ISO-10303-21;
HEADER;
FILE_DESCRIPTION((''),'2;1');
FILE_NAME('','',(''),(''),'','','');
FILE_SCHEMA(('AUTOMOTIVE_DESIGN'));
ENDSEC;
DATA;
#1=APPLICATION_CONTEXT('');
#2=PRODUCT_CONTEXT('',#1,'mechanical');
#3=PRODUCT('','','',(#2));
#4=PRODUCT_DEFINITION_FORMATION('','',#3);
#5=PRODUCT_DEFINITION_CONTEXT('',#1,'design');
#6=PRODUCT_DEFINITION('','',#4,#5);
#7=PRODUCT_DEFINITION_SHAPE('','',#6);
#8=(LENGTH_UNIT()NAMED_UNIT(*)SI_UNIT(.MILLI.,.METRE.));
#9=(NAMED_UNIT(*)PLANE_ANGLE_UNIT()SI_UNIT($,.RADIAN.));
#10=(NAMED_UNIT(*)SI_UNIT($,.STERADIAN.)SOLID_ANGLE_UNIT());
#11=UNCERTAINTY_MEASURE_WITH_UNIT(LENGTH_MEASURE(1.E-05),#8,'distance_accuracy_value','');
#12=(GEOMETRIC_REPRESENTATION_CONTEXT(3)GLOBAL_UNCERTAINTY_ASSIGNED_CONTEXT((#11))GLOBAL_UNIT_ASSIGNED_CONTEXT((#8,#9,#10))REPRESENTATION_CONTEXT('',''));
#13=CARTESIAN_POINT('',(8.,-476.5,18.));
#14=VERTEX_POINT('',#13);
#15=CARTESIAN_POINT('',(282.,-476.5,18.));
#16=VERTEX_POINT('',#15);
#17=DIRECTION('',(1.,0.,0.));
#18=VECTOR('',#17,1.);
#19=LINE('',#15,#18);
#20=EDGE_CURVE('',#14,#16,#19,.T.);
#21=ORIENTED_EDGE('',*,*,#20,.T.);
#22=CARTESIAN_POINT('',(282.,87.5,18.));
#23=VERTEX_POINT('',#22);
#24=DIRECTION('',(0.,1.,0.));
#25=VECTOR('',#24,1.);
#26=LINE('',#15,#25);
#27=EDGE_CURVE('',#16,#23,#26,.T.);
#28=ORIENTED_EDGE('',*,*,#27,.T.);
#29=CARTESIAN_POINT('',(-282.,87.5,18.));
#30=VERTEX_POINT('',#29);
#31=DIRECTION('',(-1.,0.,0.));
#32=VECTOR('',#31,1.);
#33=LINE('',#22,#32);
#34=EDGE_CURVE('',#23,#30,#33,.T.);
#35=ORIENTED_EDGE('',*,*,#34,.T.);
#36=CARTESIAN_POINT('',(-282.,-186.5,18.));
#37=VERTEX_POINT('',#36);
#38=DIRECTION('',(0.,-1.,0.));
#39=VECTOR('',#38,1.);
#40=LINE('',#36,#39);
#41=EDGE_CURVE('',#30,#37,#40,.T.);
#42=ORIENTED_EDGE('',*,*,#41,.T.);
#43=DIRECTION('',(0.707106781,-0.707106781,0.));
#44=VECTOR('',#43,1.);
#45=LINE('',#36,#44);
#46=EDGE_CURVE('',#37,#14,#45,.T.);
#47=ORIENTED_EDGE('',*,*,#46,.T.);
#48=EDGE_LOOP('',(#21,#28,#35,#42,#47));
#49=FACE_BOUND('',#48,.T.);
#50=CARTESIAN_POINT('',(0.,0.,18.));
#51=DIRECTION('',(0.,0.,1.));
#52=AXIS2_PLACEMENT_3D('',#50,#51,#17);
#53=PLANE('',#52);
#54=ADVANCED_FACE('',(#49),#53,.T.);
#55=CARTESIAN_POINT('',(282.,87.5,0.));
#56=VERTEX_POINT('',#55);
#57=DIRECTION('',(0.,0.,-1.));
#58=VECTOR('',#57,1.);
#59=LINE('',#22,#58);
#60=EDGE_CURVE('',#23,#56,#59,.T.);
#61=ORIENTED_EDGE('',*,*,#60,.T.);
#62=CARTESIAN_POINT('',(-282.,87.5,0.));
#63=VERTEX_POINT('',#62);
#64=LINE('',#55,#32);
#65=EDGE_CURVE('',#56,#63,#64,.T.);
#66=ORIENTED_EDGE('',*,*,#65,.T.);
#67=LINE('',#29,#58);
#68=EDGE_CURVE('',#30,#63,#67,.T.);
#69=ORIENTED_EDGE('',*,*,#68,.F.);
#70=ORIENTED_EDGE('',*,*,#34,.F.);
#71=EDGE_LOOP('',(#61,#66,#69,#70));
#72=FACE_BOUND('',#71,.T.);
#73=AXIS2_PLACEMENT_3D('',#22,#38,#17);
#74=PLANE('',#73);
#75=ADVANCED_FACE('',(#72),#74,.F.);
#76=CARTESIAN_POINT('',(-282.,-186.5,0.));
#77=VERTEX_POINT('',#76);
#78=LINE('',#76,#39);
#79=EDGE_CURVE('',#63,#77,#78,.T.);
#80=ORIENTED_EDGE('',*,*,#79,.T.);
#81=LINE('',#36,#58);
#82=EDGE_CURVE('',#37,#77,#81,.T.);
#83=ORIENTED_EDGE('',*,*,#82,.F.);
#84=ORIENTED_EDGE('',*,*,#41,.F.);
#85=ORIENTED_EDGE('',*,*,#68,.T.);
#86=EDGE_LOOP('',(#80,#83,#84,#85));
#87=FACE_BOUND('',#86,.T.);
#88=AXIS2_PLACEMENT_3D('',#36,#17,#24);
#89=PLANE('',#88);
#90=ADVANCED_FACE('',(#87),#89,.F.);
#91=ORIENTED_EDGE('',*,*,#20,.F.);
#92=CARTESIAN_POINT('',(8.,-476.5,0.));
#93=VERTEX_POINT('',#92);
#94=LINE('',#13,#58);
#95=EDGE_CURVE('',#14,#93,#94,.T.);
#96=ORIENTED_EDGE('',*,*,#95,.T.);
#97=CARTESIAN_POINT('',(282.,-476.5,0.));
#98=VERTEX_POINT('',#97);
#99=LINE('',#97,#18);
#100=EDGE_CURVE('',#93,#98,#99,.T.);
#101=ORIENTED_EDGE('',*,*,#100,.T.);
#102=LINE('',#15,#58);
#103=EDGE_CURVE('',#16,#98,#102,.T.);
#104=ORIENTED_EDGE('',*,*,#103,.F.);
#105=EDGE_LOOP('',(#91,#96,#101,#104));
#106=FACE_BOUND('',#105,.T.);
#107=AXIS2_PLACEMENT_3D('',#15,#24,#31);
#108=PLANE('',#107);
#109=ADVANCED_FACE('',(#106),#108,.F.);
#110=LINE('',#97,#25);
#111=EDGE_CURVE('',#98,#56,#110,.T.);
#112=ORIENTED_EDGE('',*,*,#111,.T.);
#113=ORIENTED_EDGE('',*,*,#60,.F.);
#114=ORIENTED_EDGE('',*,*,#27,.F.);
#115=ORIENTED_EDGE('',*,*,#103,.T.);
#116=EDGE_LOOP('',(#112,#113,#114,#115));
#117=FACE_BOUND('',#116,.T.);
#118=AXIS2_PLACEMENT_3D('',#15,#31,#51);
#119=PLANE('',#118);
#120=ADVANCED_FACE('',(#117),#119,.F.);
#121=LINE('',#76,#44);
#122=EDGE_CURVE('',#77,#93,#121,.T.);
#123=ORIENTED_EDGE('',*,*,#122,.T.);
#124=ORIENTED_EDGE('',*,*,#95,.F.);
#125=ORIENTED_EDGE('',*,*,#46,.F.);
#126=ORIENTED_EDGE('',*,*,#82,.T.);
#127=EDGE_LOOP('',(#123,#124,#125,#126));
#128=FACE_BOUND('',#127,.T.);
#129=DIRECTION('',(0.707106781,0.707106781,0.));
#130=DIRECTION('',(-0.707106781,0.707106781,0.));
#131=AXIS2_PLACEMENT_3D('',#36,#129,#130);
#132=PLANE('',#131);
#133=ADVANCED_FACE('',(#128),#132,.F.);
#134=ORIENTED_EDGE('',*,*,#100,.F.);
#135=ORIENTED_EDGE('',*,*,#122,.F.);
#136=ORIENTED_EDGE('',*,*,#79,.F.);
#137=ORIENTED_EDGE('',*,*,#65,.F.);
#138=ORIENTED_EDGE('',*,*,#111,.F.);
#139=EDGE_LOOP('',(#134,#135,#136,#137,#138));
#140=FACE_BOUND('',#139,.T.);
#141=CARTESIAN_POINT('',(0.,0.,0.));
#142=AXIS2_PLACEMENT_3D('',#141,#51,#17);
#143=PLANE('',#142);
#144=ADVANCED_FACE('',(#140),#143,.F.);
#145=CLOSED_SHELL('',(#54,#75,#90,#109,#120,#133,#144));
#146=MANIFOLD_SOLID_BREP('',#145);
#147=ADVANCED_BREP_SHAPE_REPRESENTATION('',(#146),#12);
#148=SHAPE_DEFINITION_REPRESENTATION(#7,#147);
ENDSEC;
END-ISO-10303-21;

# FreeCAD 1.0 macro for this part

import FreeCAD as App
import Part
import Sketcher
from FreeCAD import Vector

doc = App.newDocument("Part")
params = doc.addObject("Spreadsheet::Sheet", "Params")
for row, (alias, value) in enumerate([
    ("sketch1_width", "274 mm"),
    ("sketch1_width2", "564 mm"),
    ("pad1_length", "18 mm"),
], start=1):
    params.set(f"A{row}", alias)
    params.set(f"B{row}", "=" + value)
    params.setAlias(f"B{row}", alias)

body = doc.addObject("PartDesign::Body", "Body")

# Sketch on XY plane
sketch1 = doc.addObject("Sketcher::SketchObject", "Sketch")
body.addObject(sketch1)
sketch1.AttachmentSupport = (doc.XY_Plane, [""])
sketch1.MapMode = "FlatFace"
sketch1.addGeometry(Part.LineSegment(Vector(-282, -186, 0), Vector(8, -476, 0)), False)
sketch1.addGeometry(Part.LineSegment(Vector(8, -476, 0), Vector(282, -476, 0)), False)
sketch1.addGeometry(Part.LineSegment(Vector(282, -476, 0), Vector(282, 88, 0)), False)
sketch1.addGeometry(Part.LineSegment(Vector(282, 88, 0), Vector(-282, 88, 0)), False)
sketch1.addGeometry(Part.LineSegment(Vector(-282, 88, 0), Vector(-282, -186, 0)), False)
sketch1.addConstraint(Sketcher.Constraint("Coincident", 0, 2, 1, 1))
sketch1.addConstraint(Sketcher.Constraint("Coincident", 1, 2, 2, 1))
sketch1.addConstraint(Sketcher.Constraint("Coincident", 2, 2, 3, 1))
sketch1.addConstraint(Sketcher.Constraint("Coincident", 3, 2, 4, 1))
sketch1.addConstraint(Sketcher.Constraint("Coincident", 4, 2, 0, 1))
sketch1.addConstraint(Sketcher.Constraint("Horizontal", 1))
sketch1.addConstraint(Sketcher.Constraint("Vertical", 2))
sketch1.addConstraint(Sketcher.Constraint("Horizontal", 3))
sketch1.addConstraint(Sketcher.Constraint("Vertical", 4))
sketch1.addConstraint(Sketcher.Constraint("Equal", 3, 2))
sketch1.addConstraint(Sketcher.Constraint("Equal", 1, 4))
sketch1.addConstraint(Sketcher.Constraint("DistanceX", 1, 1, 1, 2, 274.0))
sketch1.addConstraint(Sketcher.Constraint("DistanceX", 3, 2, 3, 1, 564.0))
sketch1.addConstraint(Sketcher.Constraint("DistanceX", -1, 1, 0, 2, 8.0))
sketch1.addConstraint(Sketcher.Constraint("DistanceY", 0, 2, -1, 1, 476.5))
sketch1.setExpression("Constraints[11]", "Params.sketch1_width")
sketch1.setExpression("Constraints[12]", "Params.sketch1_width2")
pad1 = doc.addObject("PartDesign::Pad", "Pad")
body.addObject(pad1)
pad1.Profile = sketch1
pad1.setExpression("Length", "Params.pad1_length")

doc.recompute()
